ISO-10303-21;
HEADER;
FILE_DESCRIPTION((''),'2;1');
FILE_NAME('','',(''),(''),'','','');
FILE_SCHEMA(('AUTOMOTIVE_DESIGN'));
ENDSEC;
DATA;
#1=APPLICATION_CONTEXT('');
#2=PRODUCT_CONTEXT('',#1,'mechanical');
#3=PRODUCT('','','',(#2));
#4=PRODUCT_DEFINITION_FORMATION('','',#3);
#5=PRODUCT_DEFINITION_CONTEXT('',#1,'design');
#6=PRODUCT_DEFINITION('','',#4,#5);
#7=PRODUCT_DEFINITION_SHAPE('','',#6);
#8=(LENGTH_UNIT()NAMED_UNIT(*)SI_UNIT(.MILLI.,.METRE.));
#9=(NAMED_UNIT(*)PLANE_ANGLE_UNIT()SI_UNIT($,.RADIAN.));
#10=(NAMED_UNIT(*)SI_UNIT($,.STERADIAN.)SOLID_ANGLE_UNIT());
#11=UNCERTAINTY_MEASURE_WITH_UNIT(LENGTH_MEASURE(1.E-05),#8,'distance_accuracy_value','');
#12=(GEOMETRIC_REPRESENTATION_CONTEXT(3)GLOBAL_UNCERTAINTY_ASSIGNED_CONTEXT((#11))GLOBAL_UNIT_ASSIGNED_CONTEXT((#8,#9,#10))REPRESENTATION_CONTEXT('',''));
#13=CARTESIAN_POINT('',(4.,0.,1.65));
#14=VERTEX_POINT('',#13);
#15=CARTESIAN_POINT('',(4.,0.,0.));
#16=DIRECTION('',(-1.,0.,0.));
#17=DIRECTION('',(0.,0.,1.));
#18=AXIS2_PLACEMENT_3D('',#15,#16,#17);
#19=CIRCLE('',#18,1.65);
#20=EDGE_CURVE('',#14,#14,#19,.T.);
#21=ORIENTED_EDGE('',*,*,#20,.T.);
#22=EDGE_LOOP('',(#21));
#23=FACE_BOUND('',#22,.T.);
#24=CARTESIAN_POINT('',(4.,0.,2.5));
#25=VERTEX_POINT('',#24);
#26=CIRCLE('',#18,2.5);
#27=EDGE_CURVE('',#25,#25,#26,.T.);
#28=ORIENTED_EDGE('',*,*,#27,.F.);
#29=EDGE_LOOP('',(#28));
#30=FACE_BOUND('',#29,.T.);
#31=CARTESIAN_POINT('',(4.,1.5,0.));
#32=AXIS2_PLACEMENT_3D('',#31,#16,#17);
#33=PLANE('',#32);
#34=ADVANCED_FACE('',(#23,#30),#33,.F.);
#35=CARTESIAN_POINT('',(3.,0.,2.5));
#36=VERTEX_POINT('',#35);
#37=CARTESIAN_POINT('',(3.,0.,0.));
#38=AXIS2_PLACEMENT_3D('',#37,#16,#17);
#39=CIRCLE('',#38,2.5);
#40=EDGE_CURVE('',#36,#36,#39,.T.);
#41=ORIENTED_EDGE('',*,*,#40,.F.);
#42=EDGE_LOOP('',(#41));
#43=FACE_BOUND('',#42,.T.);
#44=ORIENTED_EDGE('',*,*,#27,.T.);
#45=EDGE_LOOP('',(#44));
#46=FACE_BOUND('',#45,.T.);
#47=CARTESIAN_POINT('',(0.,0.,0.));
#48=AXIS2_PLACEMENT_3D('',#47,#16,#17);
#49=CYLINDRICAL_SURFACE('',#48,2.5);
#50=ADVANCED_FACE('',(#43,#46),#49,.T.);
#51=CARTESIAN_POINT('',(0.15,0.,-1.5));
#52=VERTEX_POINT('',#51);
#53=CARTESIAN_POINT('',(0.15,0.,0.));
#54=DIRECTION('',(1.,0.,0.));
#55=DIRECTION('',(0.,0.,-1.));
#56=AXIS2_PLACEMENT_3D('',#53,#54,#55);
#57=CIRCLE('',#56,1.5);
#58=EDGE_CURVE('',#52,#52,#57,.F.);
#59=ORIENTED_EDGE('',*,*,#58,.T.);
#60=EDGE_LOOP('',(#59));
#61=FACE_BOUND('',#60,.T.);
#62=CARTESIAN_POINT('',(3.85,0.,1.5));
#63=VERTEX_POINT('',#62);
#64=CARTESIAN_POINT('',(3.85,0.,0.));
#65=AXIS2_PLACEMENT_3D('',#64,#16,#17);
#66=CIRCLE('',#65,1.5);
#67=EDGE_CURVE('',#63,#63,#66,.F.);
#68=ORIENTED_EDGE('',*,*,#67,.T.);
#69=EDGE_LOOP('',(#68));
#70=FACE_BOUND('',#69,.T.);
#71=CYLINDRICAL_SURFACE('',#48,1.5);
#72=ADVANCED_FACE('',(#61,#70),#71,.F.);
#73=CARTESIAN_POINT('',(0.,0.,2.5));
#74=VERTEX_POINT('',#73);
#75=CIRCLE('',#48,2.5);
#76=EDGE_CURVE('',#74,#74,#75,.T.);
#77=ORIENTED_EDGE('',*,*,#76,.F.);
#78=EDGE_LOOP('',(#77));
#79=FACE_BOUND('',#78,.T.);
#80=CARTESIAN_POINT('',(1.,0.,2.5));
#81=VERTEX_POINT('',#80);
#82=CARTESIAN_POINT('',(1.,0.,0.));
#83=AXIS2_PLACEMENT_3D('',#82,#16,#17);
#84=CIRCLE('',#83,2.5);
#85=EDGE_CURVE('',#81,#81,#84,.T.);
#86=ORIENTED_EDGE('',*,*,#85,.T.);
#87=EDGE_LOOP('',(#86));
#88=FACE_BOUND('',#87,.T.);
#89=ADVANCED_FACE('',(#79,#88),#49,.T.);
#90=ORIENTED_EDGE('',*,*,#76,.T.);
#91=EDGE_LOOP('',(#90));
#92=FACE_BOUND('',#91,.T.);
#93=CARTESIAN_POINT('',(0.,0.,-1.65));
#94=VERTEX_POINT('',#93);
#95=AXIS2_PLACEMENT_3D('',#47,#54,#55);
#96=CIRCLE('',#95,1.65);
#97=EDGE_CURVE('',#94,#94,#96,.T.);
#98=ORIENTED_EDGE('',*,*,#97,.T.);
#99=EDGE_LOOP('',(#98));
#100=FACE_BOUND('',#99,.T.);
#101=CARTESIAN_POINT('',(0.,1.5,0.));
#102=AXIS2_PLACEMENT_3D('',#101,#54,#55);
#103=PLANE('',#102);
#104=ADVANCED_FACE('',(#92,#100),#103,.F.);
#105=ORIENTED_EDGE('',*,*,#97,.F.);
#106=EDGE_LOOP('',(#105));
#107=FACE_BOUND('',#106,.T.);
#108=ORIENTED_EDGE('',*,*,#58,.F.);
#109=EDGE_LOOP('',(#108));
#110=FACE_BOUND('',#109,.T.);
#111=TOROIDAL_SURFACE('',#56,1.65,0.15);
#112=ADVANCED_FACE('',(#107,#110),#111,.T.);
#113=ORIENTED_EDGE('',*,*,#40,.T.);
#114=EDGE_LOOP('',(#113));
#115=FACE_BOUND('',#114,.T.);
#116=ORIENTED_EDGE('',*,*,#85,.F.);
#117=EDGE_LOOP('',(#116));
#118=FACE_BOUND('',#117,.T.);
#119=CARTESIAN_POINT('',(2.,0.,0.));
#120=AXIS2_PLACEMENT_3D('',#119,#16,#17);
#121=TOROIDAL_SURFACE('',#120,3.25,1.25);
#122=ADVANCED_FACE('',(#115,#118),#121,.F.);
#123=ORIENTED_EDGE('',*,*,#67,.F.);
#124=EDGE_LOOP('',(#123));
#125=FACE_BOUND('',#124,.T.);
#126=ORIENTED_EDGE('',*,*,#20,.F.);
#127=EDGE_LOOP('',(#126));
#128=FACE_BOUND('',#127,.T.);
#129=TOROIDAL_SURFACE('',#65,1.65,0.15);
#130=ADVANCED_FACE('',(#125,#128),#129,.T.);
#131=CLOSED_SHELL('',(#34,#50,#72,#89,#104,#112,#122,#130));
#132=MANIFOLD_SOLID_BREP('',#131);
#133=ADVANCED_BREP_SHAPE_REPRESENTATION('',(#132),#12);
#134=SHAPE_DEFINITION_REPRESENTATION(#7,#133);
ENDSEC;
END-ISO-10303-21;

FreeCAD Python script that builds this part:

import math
import FreeCAD as App
import Part
import Sketcher
from FreeCAD import Vector


def edges_at(feature, points):
    """Names of the edges that pass closest to the given points."""
    edges = feature.Shape.Edges
    near = lambda p: min(range(len(edges)), key=lambda i: edges[i].distToShape(Part.Vertex(*p))[0])
    return sorted({f"Edge{near(p) + 1}" for p in points})

doc = App.newDocument("Part")
body = doc.addObject("PartDesign::Body", "Body")

# Sketch on XY plane
sketch1 = body.newObject("Sketcher::SketchObject", "Sketch")
sketch1.AttachmentSupport = (doc.getObject("XY_Plane"), [""])
sketch1.MapMode = "FlatFace"
sketch1.addGeometry([
    Part.LineSegment(Vector(0, 2.5, 0), Vector(0, 1.5, 0)),  # 0
    Part.LineSegment(Vector(0, 1.5, 0), Vector(4, 1.5, 0)),  # 1
    Part.LineSegment(Vector(4, 1.5, 0), Vector(4, 2.5, 0)),  # 2
    Part.LineSegment(Vector(4, 2.5, 0), Vector(3, 2.5, 0)),  # 3
    Part.ArcOfCircle(Part.Circle(Vector(2, 3.2, 0), Vector(0, 0, 1), 1.2), math.radians(-143), math.radians(-37)),  # 4
    Part.LineSegment(Vector(1, 2.5, 0), Vector(0, 2.5, 0)),  # 5
], False)
sketch1.addConstraint([
    Sketcher.Constraint("Coincident", 0, 2, 1, 1),
    Sketcher.Constraint("Coincident", 1, 2, 2, 1),
    Sketcher.Constraint("Coincident", 2, 2, 3, 1),
    Sketcher.Constraint("Coincident", 3, 2, 4, 2),
    Sketcher.Constraint("Coincident", 4, 1, 5, 1),
    Sketcher.Constraint("Coincident", 5, 2, 0, 1),
    Sketcher.Constraint("Vertical", 0),
    Sketcher.Constraint("Horizontal", 1),
    Sketcher.Constraint("Vertical", 2),
    Sketcher.Constraint("Horizontal", 3),
    Sketcher.Constraint("Horizontal", 5),
    Sketcher.Constraint("PointOnObject", 0, 2, -2),
    Sketcher.Constraint("Horizontal", 3, 2, 4, 1),
    Sketcher.Constraint("Equal", 3, 5),
    Sketcher.Constraint("Equal", 5, 0),
    Sketcher.Constraint("DistanceX", 1, 1, 1, 2, 4.0),
    Sketcher.Constraint("DistanceX", 3, 2, 3, 1, 1.0),
    Sketcher.Constraint("Radius", 4, 1.25),
    Sketcher.Constraint("DistanceY", -1, 1, 0, 2, 1.5),
])
revolution = body.newObject("PartDesign::Revolution", "Revolution")
revolution.Profile = sketch1
revolution.ReferenceAxis = (sketch1, ["H_Axis"])
revolution.Angle = 360
doc.recompute()

fillet = body.newObject("PartDesign::Fillet", "Fillet")
fillet.Base = (revolution, edges_at(revolution, [(0, -1.5, 0), (4, -1.5, 0)]))
fillet.Radius = 0.15

doc.recompute()
